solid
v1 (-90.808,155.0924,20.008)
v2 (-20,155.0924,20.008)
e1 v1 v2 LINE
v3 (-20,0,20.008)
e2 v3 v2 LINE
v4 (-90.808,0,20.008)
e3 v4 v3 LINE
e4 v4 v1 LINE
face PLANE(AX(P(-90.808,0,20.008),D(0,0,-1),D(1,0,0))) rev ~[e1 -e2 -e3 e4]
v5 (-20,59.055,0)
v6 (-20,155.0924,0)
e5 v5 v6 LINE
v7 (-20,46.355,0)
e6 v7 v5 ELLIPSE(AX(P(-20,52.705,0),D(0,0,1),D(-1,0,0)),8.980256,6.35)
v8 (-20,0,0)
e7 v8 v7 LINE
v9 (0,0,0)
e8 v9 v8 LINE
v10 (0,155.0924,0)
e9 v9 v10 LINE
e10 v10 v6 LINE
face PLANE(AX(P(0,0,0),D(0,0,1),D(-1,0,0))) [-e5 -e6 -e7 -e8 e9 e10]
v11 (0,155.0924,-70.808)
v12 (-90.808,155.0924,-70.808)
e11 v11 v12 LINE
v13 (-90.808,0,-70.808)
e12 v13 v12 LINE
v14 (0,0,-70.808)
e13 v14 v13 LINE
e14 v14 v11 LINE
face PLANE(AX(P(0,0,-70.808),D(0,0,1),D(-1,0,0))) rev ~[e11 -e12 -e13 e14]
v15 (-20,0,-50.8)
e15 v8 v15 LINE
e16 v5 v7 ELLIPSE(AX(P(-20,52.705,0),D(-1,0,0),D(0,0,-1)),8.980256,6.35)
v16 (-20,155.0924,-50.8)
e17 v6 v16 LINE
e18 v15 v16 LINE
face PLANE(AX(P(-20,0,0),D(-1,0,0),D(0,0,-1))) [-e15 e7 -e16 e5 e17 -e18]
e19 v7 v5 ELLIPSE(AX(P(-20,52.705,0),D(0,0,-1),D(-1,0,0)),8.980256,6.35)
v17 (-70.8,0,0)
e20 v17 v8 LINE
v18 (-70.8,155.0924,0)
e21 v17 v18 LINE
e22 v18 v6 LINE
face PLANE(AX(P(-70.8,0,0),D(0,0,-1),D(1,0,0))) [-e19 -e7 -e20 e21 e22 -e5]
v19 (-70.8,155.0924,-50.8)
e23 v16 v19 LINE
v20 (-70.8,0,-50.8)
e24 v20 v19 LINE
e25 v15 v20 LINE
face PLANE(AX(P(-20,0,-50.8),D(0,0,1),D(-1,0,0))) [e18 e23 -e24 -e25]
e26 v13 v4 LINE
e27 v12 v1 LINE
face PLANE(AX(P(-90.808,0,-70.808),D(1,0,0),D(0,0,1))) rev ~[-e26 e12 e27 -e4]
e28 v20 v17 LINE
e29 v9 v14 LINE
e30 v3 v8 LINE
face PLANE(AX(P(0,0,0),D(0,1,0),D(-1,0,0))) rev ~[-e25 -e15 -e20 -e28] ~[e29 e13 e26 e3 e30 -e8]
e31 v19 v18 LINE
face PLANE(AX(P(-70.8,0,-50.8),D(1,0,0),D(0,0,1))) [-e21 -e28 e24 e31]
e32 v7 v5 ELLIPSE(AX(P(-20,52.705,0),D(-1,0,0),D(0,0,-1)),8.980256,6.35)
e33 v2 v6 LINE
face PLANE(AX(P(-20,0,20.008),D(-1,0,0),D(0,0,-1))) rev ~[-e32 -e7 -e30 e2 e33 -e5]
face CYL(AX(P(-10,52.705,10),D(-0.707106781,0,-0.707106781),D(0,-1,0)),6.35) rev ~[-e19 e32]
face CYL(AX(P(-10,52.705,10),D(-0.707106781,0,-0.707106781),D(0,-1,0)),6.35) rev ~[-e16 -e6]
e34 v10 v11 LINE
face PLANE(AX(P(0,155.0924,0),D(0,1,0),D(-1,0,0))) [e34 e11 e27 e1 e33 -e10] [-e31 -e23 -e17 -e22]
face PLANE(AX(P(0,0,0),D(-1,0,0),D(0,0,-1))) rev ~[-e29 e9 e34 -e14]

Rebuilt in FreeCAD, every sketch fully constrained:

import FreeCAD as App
import Part
import Sketcher
Q = App.Units.Quantity


def add_polygon(sketch, points):
    """Adds a closed chain of lines whose ends are joined by coincident constraints."""
    first, n = sketch.GeometryCount, len(points)
    for a, b in zip(points, points[1:] + points[:1]):
        sketch.addGeometry(Part.LineSegment(App.Vector(*a, 0), App.Vector(*b, 0)), False)
    for i in range(n):
        sketch.addConstraint(Sketcher.Constraint("Coincident", first + i, 2, first + (i + 1) % n, 1))

doc = App.newDocument("Part")
body = doc.addObject("PartDesign::Body", "Body")

# Sketch on XZ plane
sketch1 = doc.addObject("Sketcher::SketchObject", "Sketch")
body.addObject(sketch1)
sketch1.AttachmentSupport = (doc.XZ_Plane, [""])
sketch1.MapMode = "FlatFace"
add_polygon(sketch1, [(-20, 0), (0, 0), (0, -70.808), (-90.808, -70.808), (-90.808, 20.008), (-20, 20.008)])  # lines 0-5
add_polygon(sketch1, [(-20, -50.8), (-20, 0), (-70.8, 0), (-70.8, -50.8)])  # lines 6-9
sketch1.addConstraint(Sketcher.Constraint("Horizontal", 0))
sketch1.addConstraint(Sketcher.Constraint("Vertical", 1))
sketch1.addConstraint(Sketcher.Constraint("Horizontal", 2))
sketch1.addConstraint(Sketcher.Constraint("Vertical", 3))
sketch1.addConstraint(Sketcher.Constraint("Horizontal", 4))
sketch1.addConstraint(Sketcher.Constraint("Vertical", 5))
sketch1.addConstraint(Sketcher.Constraint("Vertical", 6))
sketch1.addConstraint(Sketcher.Constraint("Horizontal", 7))
sketch1.addConstraint(Sketcher.Constraint("Vertical", 8))
sketch1.addConstraint(Sketcher.Constraint("Horizontal", 9))
sketch1.addConstraint(Sketcher.Constraint("Coincident", 0, 2, -1, 1))
sketch1.addConstraint(Sketcher.Constraint("Coincident", 6, 2, 5, 2))
sketch1.addConstraint(Sketcher.Constraint("Equal", 4, 1))
sketch1.addConstraint(Sketcher.Constraint("Equal", 9, 6))
sketch1.addConstraint(Sketcher.Constraint("DistanceX", 7, 2, 7, 1, Q("2 in")))
sketch1.addConstraint(Sketcher.Constraint("DistanceX", 0, 1, 0, 2, Q("0.7874 in")))
sketch1.addConstraint(Sketcher.Constraint("DistanceY", 5, 2, 5, 1, Q("20.008 mm")))
sketch1.addConstraint(Sketcher.Constraint("DistanceX", 3, 2, 7, 2, Q("20.008 mm")))
pad1 = doc.addObject("PartDesign::Pad", "Pad")
body.addObject(pad1)
pad1.Profile = sketch1
pad1.Length = Q("6.106 in")
pad1.Reversed = True

# Sketch on an angled plane
sketch2 = doc.addObject("Sketcher::SketchObject", "Sketch001")
body.addObject(sketch2)
sketch2.Placement = App.Placement(App.Vector(0, 0, 0), App.Rotation(App.Vector(0.707106781, 0, -0.707106781), App.Vector(0, 0.999999999, 0), App.Vector(0.707106781, 0, 0.707106781), "ZXY"))
sketch2.addGeometry(Part.Circle(App.Vector(-14.142136, 52.705, 0), App.Vector(0, 0, 1), 6.35), False)
sketch2.addConstraint(Sketcher.Constraint("Diameter", 0, Q("0.5 in")))
sketch2.addConstraint(Sketcher.Constraint("DistanceY", -1, 1, 0, 3, Q("2.075 in")))
sketch2.addConstraint(Sketcher.Constraint("DistanceX", 0, 3, -1, 1, Q("14.1421 mm")))
doc.recompute()
hole = doc.addObject("PartDesign::Hole", "Hole")
body.addObject(hole)
hole.Profile = sketch2
hole.ThreadType = "None"
hole.Diameter = Q("0.5 in")
hole.DepthType = "Dimension"
hole.Depth = Q("1 in")
hole.DrillPoint = "Flat"

doc.recompute()
